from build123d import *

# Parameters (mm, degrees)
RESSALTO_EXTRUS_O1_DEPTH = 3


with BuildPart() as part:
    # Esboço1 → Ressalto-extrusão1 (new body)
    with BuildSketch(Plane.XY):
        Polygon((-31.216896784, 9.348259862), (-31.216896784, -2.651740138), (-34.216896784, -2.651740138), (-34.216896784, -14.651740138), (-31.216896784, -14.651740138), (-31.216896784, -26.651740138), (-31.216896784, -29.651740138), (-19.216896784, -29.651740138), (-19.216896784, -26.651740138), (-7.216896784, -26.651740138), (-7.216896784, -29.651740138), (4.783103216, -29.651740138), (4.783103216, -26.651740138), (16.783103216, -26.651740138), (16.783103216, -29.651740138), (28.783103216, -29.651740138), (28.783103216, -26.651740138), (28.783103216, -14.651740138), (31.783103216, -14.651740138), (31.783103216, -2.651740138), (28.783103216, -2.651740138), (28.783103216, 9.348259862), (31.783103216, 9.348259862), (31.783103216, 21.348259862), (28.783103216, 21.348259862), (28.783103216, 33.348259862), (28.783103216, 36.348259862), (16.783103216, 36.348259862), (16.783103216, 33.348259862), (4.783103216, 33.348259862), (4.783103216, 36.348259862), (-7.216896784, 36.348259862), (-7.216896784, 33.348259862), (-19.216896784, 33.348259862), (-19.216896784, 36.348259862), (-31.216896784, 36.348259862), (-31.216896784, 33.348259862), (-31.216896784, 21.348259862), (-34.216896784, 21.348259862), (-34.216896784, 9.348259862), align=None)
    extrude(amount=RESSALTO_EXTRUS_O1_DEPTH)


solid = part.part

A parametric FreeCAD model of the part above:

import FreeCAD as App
import Part
import Sketcher
from FreeCAD import Vector
Q = App.Units.Quantity

doc = App.newDocument("Part")
body = doc.addObject("PartDesign::Body", "Body")

# Sketch on XY plane
sketch1 = body.newObject("Sketcher::SketchObject", "Sketch")
sketch1.AttachmentSupport = (doc.getObject("XY_Plane"), [""])
sketch1.MapMode = "FlatFace"
sketch1.addGeometry([
    Part.LineSegment(Vector(-31.2, 9.3, 0), Vector(-31.2, -2.7, 0)),  # 0
    Part.LineSegment(Vector(-31.2, -2.7, 0), Vector(-34.2, -2.7, 0)),  # 1
    Part.LineSegment(Vector(-34.2, -2.7, 0), Vector(-34.2, -14.7, 0)),  # 2
    Part.LineSegment(Vector(-34.2, -14.7, 0), Vector(-31.2, -14.7, 0)),  # 3
    Part.LineSegment(Vector(-31.2, -14.7, 0), Vector(-31.2, -29.7, 0)),  # 4
    Part.LineSegment(Vector(-31.2, -29.7, 0), Vector(-19.2, -29.7, 0)),  # 5
    Part.LineSegment(Vector(-19.2, -29.7, 0), Vector(-19.2, -26.7, 0)),  # 6
    Part.LineSegment(Vector(-19.2, -26.7, 0), Vector(-7.2, -26.7, 0)),  # 7
    Part.LineSegment(Vector(-7.2, -26.7, 0), Vector(-7.2, -29.7, 0)),  # 8
    Part.LineSegment(Vector(-7.2, -29.7, 0), Vector(4.8, -29.7, 0)),  # 9
    Part.LineSegment(Vector(4.8, -29.7, 0), Vector(4.8, -26.7, 0)),  # 10
    Part.LineSegment(Vector(4.8, -26.7, 0), Vector(16.8, -26.7, 0)),  # 11
    Part.LineSegment(Vector(16.8, -26.7, 0), Vector(16.8, -29.7, 0)),  # 12
    Part.LineSegment(Vector(16.8, -29.7, 0), Vector(28.8, -29.7, 0)),  # 13
    Part.LineSegment(Vector(28.8, -29.7, 0), Vector(28.8, -14.7, 0)),  # 14
    Part.LineSegment(Vector(28.8, -14.7, 0), Vector(31.8, -14.7, 0)),  # 15
    Part.LineSegment(Vector(31.8, -14.7, 0), Vector(31.8, -2.7, 0)),  # 16
    Part.LineSegment(Vector(31.8, -2.7, 0), Vector(28.8, -2.7, 0)),  # 17
    Part.LineSegment(Vector(28.8, -2.7, 0), Vector(28.8, 9.3, 0)),  # 18
    Part.LineSegment(Vector(28.8, 9.3, 0), Vector(31.8, 9.3, 0)),  # 19
    Part.LineSegment(Vector(31.8, 9.3, 0), Vector(31.8, 21.3, 0)),  # 20
    Part.LineSegment(Vector(31.8, 21.3, 0), Vector(28.8, 21.3, 0)),  # 21
    Part.LineSegment(Vector(28.8, 21.3, 0), Vector(28.8, 36.3, 0)),  # 22
    Part.LineSegment(Vector(28.8, 36.3, 0), Vector(16.8, 36.3, 0)),  # 23
    Part.LineSegment(Vector(16.8, 36.3, 0), Vector(16.8, 33.3, 0)),  # 24
    Part.LineSegment(Vector(16.8, 33.3, 0), Vector(4.8, 33.3, 0)),  # 25
    Part.LineSegment(Vector(4.8, 33.3, 0), Vector(4.8, 36.3, 0)),  # 26
    Part.LineSegment(Vector(4.8, 36.3, 0), Vector(-7.2, 36.3, 0)),  # 27
    Part.LineSegment(Vector(-7.2, 36.3, 0), Vector(-7.2, 33.3, 0)),  # 28
    Part.LineSegment(Vector(-7.2, 33.3, 0), Vector(-19.2, 33.3, 0)),  # 29
    Part.LineSegment(Vector(-19.2, 33.3, 0), Vector(-19.2, 36.3, 0)),  # 30
    Part.LineSegment(Vector(-19.2, 36.3, 0), Vector(-31.2, 36.3, 0)),  # 31
    Part.LineSegment(Vector(-31.2, 36.3, 0), Vector(-31.2, 21.3, 0)),  # 32
    Part.LineSegment(Vector(-31.2, 21.3, 0), Vector(-34.2, 21.3, 0)),  # 33
    Part.LineSegment(Vector(-34.2, 21.3, 0), Vector(-34.2, 9.3, 0)),  # 34
    Part.LineSegment(Vector(-34.2, 9.3, 0), Vector(-31.2, 9.3, 0)),  # 35
], False)
sketch1.addConstraint([
    Sketcher.Constraint("Coincident", 0, 2, 1, 1),
    Sketcher.Constraint("Coincident", 1, 2, 2, 1),
    Sketcher.Constraint("Coincident", 2, 2, 3, 1),
    Sketcher.Constraint("Coincident", 3, 2, 4, 1),
    Sketcher.Constraint("Coincident", 4, 2, 5, 1),
    Sketcher.Constraint("Coincident", 5, 2, 6, 1),
    Sketcher.Constraint("Coincident", 6, 2, 7, 1),
    Sketcher.Constraint("Coincident", 7, 2, 8, 1),
    Sketcher.Constraint("Coincident", 8, 2, 9, 1),
    Sketcher.Constraint("Coincident", 9, 2, 10, 1),
    Sketcher.Constraint("Coincident", 10, 2, 11, 1),
    Sketcher.Constraint("Coincident", 11, 2, 12, 1),
    Sketcher.Constraint("Coincident", 12, 2, 13, 1),
    Sketcher.Constraint("Coincident", 13, 2, 14, 1),
    Sketcher.Constraint("Coincident", 14, 2, 15, 1),
    Sketcher.Constraint("Coincident", 15, 2, 16, 1),
    Sketcher.Constraint("Coincident", 16, 2, 17, 1),
    Sketcher.Constraint("Coincident", 17, 2, 18, 1),
    Sketcher.Constraint("Coincident", 18, 2, 19, 1),
    Sketcher.Constraint("Coincident", 19, 2, 20, 1),
    Sketcher.Constraint("Coincident", 20, 2, 21, 1),
    Sketcher.Constraint("Coincident", 21, 2, 22, 1),
    Sketcher.Constraint("Coincident", 22, 2, 23, 1),
    Sketcher.Constraint("Coincident", 23, 2, 24, 1),
    Sketcher.Constraint("Coincident", 24, 2, 25, 1),
    Sketcher.Constraint("Coincident", 25, 2, 26, 1),
    Sketcher.Constraint("Coincident", 26, 2, 27, 1),
    Sketcher.Constraint("Coincident", 27, 2, 28, 1),
    Sketcher.Constraint("Coincident", 28, 2, 29, 1),
    Sketcher.Constraint("Coincident", 29, 2, 30, 1),
    Sketcher.Constraint("Coincident", 30, 2, 31, 1),
    Sketcher.Constraint("Coincident", 31, 2, 32, 1),
    Sketcher.Constraint("Coincident", 32, 2, 33, 1),
    Sketcher.Constraint("Coincident", 33, 2, 34, 1),
    Sketcher.Constraint("Coincident", 34, 2, 35, 1),
    Sketcher.Constraint("Coincident", 35, 2, 0, 1),
    Sketcher.Constraint("Vertical", 0),
    Sketcher.Constraint("Horizontal", 1),
    Sketcher.Constraint("Vertical", 2),
    Sketcher.Constraint("Horizontal", 3),
    Sketcher.Constraint("Vertical", 4),
    Sketcher.Constraint("Horizontal", 5),
    Sketcher.Constraint("Vertical", 6),
    Sketcher.Constraint("Horizontal", 7),
    Sketcher.Constraint("Vertical", 8),
    Sketcher.Constraint("Horizontal", 9),
    Sketcher.Constraint("Vertical", 10),
    Sketcher.Constraint("Horizontal", 11),
    Sketcher.Constraint("Vertical", 12),
    Sketcher.Constraint("Horizontal", 13),
    Sketcher.Constraint("Vertical", 14),
    Sketcher.Constraint("Horizontal", 15),
    Sketcher.Constraint("Vertical", 16),
    Sketcher.Constraint("Horizontal", 17),
    Sketcher.Constraint("Vertical", 18),
    Sketcher.Constraint("Horizontal", 19),
    Sketcher.Constraint("Vertical", 20),
    Sketcher.Constraint("Horizontal", 21),
    Sketcher.Constraint("Vertical", 22),
    Sketcher.Constraint("Horizontal", 23),
    Sketcher.Constraint("Vertical", 24),
    Sketcher.Constraint("Horizontal", 25),
    Sketcher.Constraint("Vertical", 26),
    Sketcher.Constraint("Horizontal", 27),
    Sketcher.Constraint("Vertical", 28),
    Sketcher.Constraint("Horizontal", 29),
    Sketcher.Constraint("Vertical", 30),
    Sketcher.Constraint("Horizontal", 31),
    Sketcher.Constraint("Vertical", 32),
    Sketcher.Constraint("Horizontal", 33),
    Sketcher.Constraint("Vertical", 34),
    Sketcher.Constraint("Horizontal", 35),
    Sketcher.Constraint("Horizontal", 5, 2, 8, 2),
    Sketcher.Constraint("Horizontal", 7, 2, 10, 2),
    Sketcher.Constraint("Horizontal", 9, 2, 12, 2),
    Sketcher.Constraint("Horizontal", 3, 2, 14, 2),
    Sketcher.Constraint("Horizontal", 1, 2, 16, 2),
    Sketcher.Constraint("Horizontal", 23, 2, 26, 2),
    Sketcher.Constraint("Horizontal", 25, 2, 28, 2),
    Sketcher.Constraint("Horizontal", 27, 2, 30, 2),
    Sketcher.Constraint("Horizontal", 21, 2, 32, 2),
    Sketcher.Constraint("Horizontal", 19, 2, 34, 2),
    Sketcher.Constraint("Vertical", 0, 2, 3, 2),
    Sketcher.Constraint("Vertical", 14, 2, 17, 2),
    Sketcher.Constraint("Vertical", 16, 2, 19, 2),
    Sketcher.Constraint("Vertical", 18, 2, 21, 2),
    Sketcher.Constraint("Vertical", 12, 2, 23, 2),
    Sketcher.Constraint("Vertical", 10, 2, 25, 2),
    Sketcher.Constraint("Vertical", 8, 2, 27, 2),
    Sketcher.Constraint("Vertical", 6, 2, 29, 2),
    Sketcher.Constraint("Vertical", 4, 2, 31, 2),
    Sketcher.Constraint("Vertical", 2, 2, 33, 2),
    Sketcher.Constraint("Equal", 5, 7),
    Sketcher.Constraint("Equal", 7, 9),
    Sketcher.Constraint("Equal", 9, 11),
    Sketcher.Constraint("Equal", 11, 13),
    Sketcher.Constraint("Equal", 3, 15),
    Sketcher.Constraint("Equal", 31, 0),
    Sketcher.Constraint("Equal", 0, 2),
    Sketcher.Constraint("Equal", 35, 6),
    Sketcher.Constraint("Equal", 18, 20),
    Sketcher.Constraint("Equal", 14, 22),
    Sketcher.Constraint("Equal", 12, 24),
    Sketcher.Constraint("DistanceX", 1, 2, 1, 1, Q("3 mm")),
    Sketcher.Constraint("DistanceX", 5, 1, 5, 2, Q("12 mm")),
    Sketcher.Constraint("DistanceY", 4, 2, 4, 1, Q("15 mm")),
    Sketcher.Constraint("DistanceY", 0, 2, -1, 1, Q("2.65174 mm")),
    Sketcher.Constraint("DistanceX", 0, 2, -1, 1, Q("31.216897 mm")),
])
pad1 = body.newObject("PartDesign::Pad", "Pad")
pad1.Profile = sketch1
pad1.Length = 3

doc.recompute()
